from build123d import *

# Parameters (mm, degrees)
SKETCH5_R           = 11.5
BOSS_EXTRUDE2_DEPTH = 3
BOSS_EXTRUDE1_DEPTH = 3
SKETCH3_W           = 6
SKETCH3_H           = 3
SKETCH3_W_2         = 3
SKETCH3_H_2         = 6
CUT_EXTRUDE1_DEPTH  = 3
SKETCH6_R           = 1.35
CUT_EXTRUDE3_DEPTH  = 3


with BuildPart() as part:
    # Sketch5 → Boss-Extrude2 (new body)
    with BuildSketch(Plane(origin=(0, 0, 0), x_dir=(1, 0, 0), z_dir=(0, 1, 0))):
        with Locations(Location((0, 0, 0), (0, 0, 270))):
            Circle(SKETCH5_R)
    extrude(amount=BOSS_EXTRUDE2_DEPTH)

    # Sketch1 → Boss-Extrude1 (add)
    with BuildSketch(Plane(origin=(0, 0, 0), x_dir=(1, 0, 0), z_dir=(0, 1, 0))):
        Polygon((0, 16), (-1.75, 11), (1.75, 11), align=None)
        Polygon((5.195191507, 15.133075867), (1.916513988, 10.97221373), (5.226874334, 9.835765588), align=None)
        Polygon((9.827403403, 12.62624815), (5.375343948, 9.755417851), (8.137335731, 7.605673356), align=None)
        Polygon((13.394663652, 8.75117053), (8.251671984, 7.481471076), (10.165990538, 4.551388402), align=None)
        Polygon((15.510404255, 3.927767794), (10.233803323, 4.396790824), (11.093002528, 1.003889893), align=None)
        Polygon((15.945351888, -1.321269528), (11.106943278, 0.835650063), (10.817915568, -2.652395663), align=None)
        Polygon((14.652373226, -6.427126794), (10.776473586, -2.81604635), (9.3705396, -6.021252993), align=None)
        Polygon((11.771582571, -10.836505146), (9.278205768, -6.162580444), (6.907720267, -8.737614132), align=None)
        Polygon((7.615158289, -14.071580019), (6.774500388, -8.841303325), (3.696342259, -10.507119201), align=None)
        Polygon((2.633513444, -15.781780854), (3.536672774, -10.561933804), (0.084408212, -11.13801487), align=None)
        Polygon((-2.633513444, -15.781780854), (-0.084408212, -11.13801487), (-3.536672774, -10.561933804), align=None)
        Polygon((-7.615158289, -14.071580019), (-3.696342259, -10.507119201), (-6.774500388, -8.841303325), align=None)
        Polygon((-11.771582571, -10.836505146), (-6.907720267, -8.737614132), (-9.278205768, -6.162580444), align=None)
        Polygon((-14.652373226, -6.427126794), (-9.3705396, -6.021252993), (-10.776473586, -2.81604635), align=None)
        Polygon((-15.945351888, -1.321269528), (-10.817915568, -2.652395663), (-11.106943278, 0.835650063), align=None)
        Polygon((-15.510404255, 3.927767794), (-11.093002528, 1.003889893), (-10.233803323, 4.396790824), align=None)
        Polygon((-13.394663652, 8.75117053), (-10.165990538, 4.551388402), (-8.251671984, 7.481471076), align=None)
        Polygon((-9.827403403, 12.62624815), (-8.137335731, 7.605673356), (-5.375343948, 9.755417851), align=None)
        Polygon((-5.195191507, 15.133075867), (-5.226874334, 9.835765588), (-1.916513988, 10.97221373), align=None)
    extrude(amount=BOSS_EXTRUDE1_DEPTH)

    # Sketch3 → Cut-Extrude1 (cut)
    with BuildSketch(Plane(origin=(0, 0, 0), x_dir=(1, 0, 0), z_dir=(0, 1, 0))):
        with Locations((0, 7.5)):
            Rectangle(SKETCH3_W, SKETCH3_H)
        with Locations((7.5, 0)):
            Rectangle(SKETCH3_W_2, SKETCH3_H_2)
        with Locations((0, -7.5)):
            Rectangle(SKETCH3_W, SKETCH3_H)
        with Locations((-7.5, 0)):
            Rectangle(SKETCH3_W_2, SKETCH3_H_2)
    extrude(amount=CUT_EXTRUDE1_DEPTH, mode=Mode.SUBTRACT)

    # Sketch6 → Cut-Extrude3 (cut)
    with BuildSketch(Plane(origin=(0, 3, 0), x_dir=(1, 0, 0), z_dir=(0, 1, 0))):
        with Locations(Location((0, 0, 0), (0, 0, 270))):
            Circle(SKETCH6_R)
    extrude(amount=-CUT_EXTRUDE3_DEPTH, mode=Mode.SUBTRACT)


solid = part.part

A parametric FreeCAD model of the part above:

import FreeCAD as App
import Part
import Sketcher
from FreeCAD import Vector
Q = App.Units.Quantity


def add_polygon(sketch, points):
    """Adds a closed chain of lines whose ends are joined by coincident constraints."""
    first, n = sketch.GeometryCount, len(points)
    for a, b in zip(points, points[1:] + points[:1]):
        sketch.addGeometry(Part.LineSegment(App.Vector(*a, 0), App.Vector(*b, 0)), False)
    for i in range(n):
        sketch.addConstraint(Sketcher.Constraint("Coincident", first + i, 2, first + (i + 1) % n, 1))

doc = App.newDocument("Part")
body = doc.addObject("PartDesign::Body", "Body")

sketch1 = body.newObject("Sketcher::SketchObject", "Sketch")
sketch1.AttachmentSupport = (doc.getObject("XZ_Plane"), [""])
sketch1.MapMode = "FlatFace"
sketch1.addGeometry(Part.Circle(Vector(0, 0, 0), Vector(0, 0, 1), 12), False)
sketch1.addConstraint(Sketcher.Constraint("Coincident", 0, 3, -1, 1))
sketch1.addConstraint(Sketcher.Constraint("Diameter", 0, Q("23 mm")))
pad1 = body.newObject("PartDesign::Pad", "Pad")
pad1.Profile = sketch1
pad1.Length = 3
pad1.Reversed = True

sketch2 = body.newObject("Sketcher::SketchObject", "Sketch001")
sketch2.AttachmentSupport = (doc.getObject("XZ_Plane"), [""])
sketch2.MapMode = "FlatFace"
add_polygon(sketch2, [(0, -16), (-1.8, -11), (1.8, -11)])
add_polygon(sketch2, [(5.2, -15.1), (1.9, -11), (5.2, -9.8)])
add_polygon(sketch2, [(9.8, -12.6), (5.4, -9.8), (8.1, -7.6)])
add_polygon(sketch2, [(13.4, -8.8), (8.3, -7.5), (10.2, -4.6)])
add_polygon(sketch2, [(15.5, -3.9), (10.2, -4.4), (11.1, -1)])
add_polygon(sketch2, [(15.9, 1.3), (11.1, -0.8), (10.8, 2.7)])
add_polygon(sketch2, [(14.7, 6.4), (10.8, 2.8), (9.4, 6)])
add_polygon(sketch2, [(11.8, 10.8), (9.3, 6.2), (6.9, 8.7)])
add_polygon(sketch2, [(7.6, 14.1), (6.8, 8.8), (3.7, 10.5)])
add_polygon(sketch2, [(2.6, 15.8), (3.5, 10.6), (0.1, 11.1)])
add_polygon(sketch2, [(-2.6, 15.8), (-0.1, 11.1), (-3.5, 10.6)])
add_polygon(sketch2, [(-7.6, 14.1), (-3.7, 10.5), (-6.8, 8.8)])
add_polygon(sketch2, [(-11.8, 10.8), (-6.9, 8.7), (-9.3, 6.2)])
add_polygon(sketch2, [(-14.7, 6.4), (-9.4, 6), (-10.8, 2.8)])
add_polygon(sketch2, [(-15.9, 1.3), (-10.8, 2.7), (-11.1, -0.8)])
add_polygon(sketch2, [(-15.5, -3.9), (-11.1, -1), (-10.2, -4.4)])
add_polygon(sketch2, [(-13.4, -8.8), (-10.2, -4.6), (-8.3, -7.5)])
add_polygon(sketch2, [(-9.8, -12.6), (-8.1, -7.6), (-5.4, -9.8)])
add_polygon(sketch2, [(-5.2, -15.1), (-5.2, -9.8), (-1.9, -11)])
sketch2.addConstraint(Sketcher.Constraint("Horizontal", 1))
sketch2.addConstraint(Sketcher.Constraint("Symmetric", 28, 2, 30, 2, -2))
sketch2.addConstraint(Sketcher.Constraint("Symmetric", 27, 2, 31, 2, -2))
sketch2.addConstraint(Sketcher.Constraint("Symmetric", 29, 2, 32, 2, -2))
sketch2.addConstraint(Sketcher.Constraint("Symmetric", 25, 2, 33, 2, -2))
sketch2.addConstraint(Sketcher.Constraint("Symmetric", 24, 2, 34, 2, -2))
sketch2.addConstraint(Sketcher.Constraint("Symmetric", 26, 2, 35, 2, -2))
sketch2.addConstraint(Sketcher.Constraint("Symmetric", 22, 2, 36, 2, -2))
sketch2.addConstraint(Sketcher.Constraint("Symmetric", 21, 2, 37, 2, -2))
sketch2.addConstraint(Sketcher.Constraint("Symmetric", 23, 2, 38, 2, -2))
sketch2.addConstraint(Sketcher.Constraint("Symmetric", 19, 2, 39, 2, -2))
sketch2.addConstraint(Sketcher.Constraint("Symmetric", 18, 2, 40, 2, -2))
sketch2.addConstraint(Sketcher.Constraint("Symmetric", 20, 2, 41, 2, -2))
sketch2.addConstraint(Sketcher.Constraint("Symmetric", 16, 2, 42, 2, -2))
sketch2.addConstraint(Sketcher.Constraint("Symmetric", 15, 2, 43, 2, -2))
sketch2.addConstraint(Sketcher.Constraint("Symmetric", 17, 2, 44, 2, -2))
sketch2.addConstraint(Sketcher.Constraint("Symmetric", 13, 2, 45, 2, -2))
sketch2.addConstraint(Sketcher.Constraint("Symmetric", 12, 2, 46, 2, -2))
sketch2.addConstraint(Sketcher.Constraint("Symmetric", 14, 2, 47, 2, -2))
sketch2.addConstraint(Sketcher.Constraint("Symmetric", 10, 2, 48, 2, -2))
sketch2.addConstraint(Sketcher.Constraint("Symmetric", 9, 2, 49, 2, -2))
sketch2.addConstraint(Sketcher.Constraint("Symmetric", 11, 2, 50, 2, -2))
sketch2.addConstraint(Sketcher.Constraint("Symmetric", 7, 2, 51, 2, -2))
sketch2.addConstraint(Sketcher.Constraint("Symmetric", 6, 2, 52, 2, -2))
sketch2.addConstraint(Sketcher.Constraint("Symmetric", 8, 2, 53, 2, -2))
sketch2.addConstraint(Sketcher.Constraint("Symmetric", 4, 2, 54, 2, -2))
sketch2.addConstraint(Sketcher.Constraint("Symmetric", 3, 2, 55, 2, -2))
sketch2.addConstraint(Sketcher.Constraint("Symmetric", 5, 2, 56, 2, -2))
sketch2.addConstraint(Sketcher.Constraint("PointOnObject", 2, 2, -2))
sketch2.addConstraint(Sketcher.Constraint("Equal", 0, 2))
sketch2.addConstraint(Sketcher.Constraint("Equal", 2, 3))
sketch2.addConstraint(Sketcher.Constraint("Equal", 3, 5))
sketch2.addConstraint(Sketcher.Constraint("Equal", 5, 6))
sketch2.addConstraint(Sketcher.Constraint("Equal", 4, 7))
sketch2.addConstraint(Sketcher.Constraint("Equal", 6, 8))
sketch2.addConstraint(Sketcher.Constraint("Equal", 8, 9))
sketch2.addConstraint(Sketcher.Constraint("Equal", 7, 10))
sketch2.addConstraint(Sketcher.Constraint("Equal", 9, 11))
sketch2.addConstraint(Sketcher.Constraint("Equal", 11, 12))
sketch2.addConstraint(Sketcher.Constraint("Equal", 10, 13))
sketch2.addConstraint(Sketcher.Constraint("Equal", 12, 14))
sketch2.addConstraint(Sketcher.Constraint("Equal", 14, 15))
sketch2.addConstraint(Sketcher.Constraint("Equal", 13, 16))
sketch2.addConstraint(Sketcher.Constraint("Equal", 15, 17))
sketch2.addConstraint(Sketcher.Constraint("Equal", 17, 18))
sketch2.addConstraint(Sketcher.Constraint("Equal", 16, 19))
sketch2.addConstraint(Sketcher.Constraint("Equal", 18, 20))
sketch2.addConstraint(Sketcher.Constraint("Equal", 20, 21))
sketch2.addConstraint(Sketcher.Constraint("Equal", 19, 22))
sketch2.addConstraint(Sketcher.Constraint("Equal", 21, 23))
sketch2.addConstraint(Sketcher.Constraint("Equal", 23, 24))
sketch2.addConstraint(Sketcher.Constraint("Equal", 22, 25))
sketch2.addConstraint(Sketcher.Constraint("Equal", 24, 26))
sketch2.addConstraint(Sketcher.Constraint("Equal", 26, 27))
sketch2.addConstraint(Sketcher.Constraint("Equal", 25, 28))
sketch2.addConstraint(Sketcher.Constraint("Equal", 27, 29))
sketch2.addConstraint(Sketcher.Constraint("DistanceX", 1, 1, 1, 2, Q("3.5 mm")))
sketch2.addConstraint(Sketcher.Constraint("DistanceY", 0, 2, -1, 1, Q("11 mm")))
sketch2.addConstraint(Sketcher.Constraint("DistanceY", 2, 2, -1, 1, Q("16 mm")))
sketch2.addConstraint(Sketcher.Constraint("Distance", 4, Q("3.5 mm")))
sketch2.addConstraint(Sketcher.Constraint("DistanceY", 21, 2, 26, 2, Q("7.909 mm")))
sketch2.addConstraint(Sketcher.Constraint("DistanceX", -1, 1, 24, 2, Q("6.7745 mm")))
sketch2.addConstraint(Sketcher.Constraint("DistanceY", 11, 2, 9, 2, Q("1.269699 mm")))
sketch2.addConstraint(Sketcher.Constraint("DistanceX", 12, 2, 13, 2, Q("0.859199 mm")))
sketch2.addConstraint(Sketcher.Constraint("DistanceY", 10, 2, 13, 2, Q("3.547499 mm")))
sketch2.addConstraint(Sketcher.Constraint("DistanceX", 18, 2, 20, 2, Q("3.8759 mm")))
sketch2.addConstraint(Sketcher.Constraint("DistanceY", 24, 2, 23, 2, Q("1.995202 mm")))
sketch2.addConstraint(Sketcher.Constraint("DistanceY", 22, 2, 28, 2, Q("2.400401 mm")))
sketch2.addConstraint(Sketcher.Constraint("DistanceY", 26, 2, 29, 2, Q("1.710201 mm")))
sketch2.addConstraint(Sketcher.Constraint("DistanceX", -1, 1, 5, 2, Q("5.195192 mm")))
sketch2.addConstraint(Sketcher.Constraint("DistanceY", 8, 2, -1, 1, Q("12.626248 mm")))
sketch2.addConstraint(Sketcher.Constraint("DistanceX", -1, 1, 9, 2, Q("8.251672 mm")))
sketch2.addConstraint(Sketcher.Constraint("DistanceY", 9, 2, -1, 1, Q("7.481471 mm")))
sketch2.addConstraint(Sketcher.Constraint("DistanceY", 15, 2, -1, 1, Q("0.83565 mm")))
sketch2.addConstraint(Sketcher.Constraint("DistanceX", -1, 1, 17, 2, Q("15.945352 mm")))
sketch2.addConstraint(Sketcher.Constraint("DistanceY", -1, 1, 17, 2, Q("1.32127 mm")))
sketch2.addConstraint(Sketcher.Constraint("DistanceX", -1, 1, 19, 2, Q("9.37054 mm")))
sketch2.addConstraint(Sketcher.Constraint("DistanceY", -1, 1, 21, 2, Q("6.16258 mm")))
sketch2.addConstraint(Sketcher.Constraint("DistanceX", -1, 1, 22, 2, Q("6.90772 mm")))
sketch2.addConstraint(Sketcher.Constraint("DistanceY", -1, 1, 25, 2, Q("10.507119 mm")))
sketch2.addConstraint(Sketcher.Constraint("DistanceX", -1, 1, 28, 2, Q("0.084408 mm")))
sketch2.addConstraint(Sketcher.Constraint("DistanceX", 3, 2, 4, 2, Q("3.31036 mm")))
sketch2.addConstraint(Sketcher.Constraint("DistanceX", 4, 2, 6, 2, Q("0.14847 mm")))
sketch2.addConstraint(Sketcher.Constraint("DistanceY", 5, 2, 6, 2, Q("5.377658 mm")))
sketch2.addConstraint(Sketcher.Constraint("DistanceX", 6, 2, 7, 2, Q("2.761992 mm")))
sketch2.addConstraint(Sketcher.Constraint("DistanceX", 9, 2, 12, 2, Q("1.982131 mm")))
sketch2.addConstraint(Sketcher.Constraint("DistanceY", 16, 2, 18, 2, Q("0.163651 mm")))
pad2 = body.newObject("PartDesign::Pad", "Pad001")
pad2.Profile = sketch2
pad2.Length = 3
pad2.Reversed = True

sketch3 = body.newObject("Sketcher::SketchObject", "Sketch002")
sketch3.AttachmentSupport = (doc.getObject("XZ_Plane"), [""])
sketch3.MapMode = "FlatFace"
add_polygon(sketch3, [(-3, -9), (-3, -6), (3, -6), (3, -9)])
add_polygon(sketch3, [(6, -3), (6, 3), (9, 3), (9, -3)])
add_polygon(sketch3, [(-3, 6), (-3, 9), (3, 9), (3, 6)])
add_polygon(sketch3, [(-9, -3), (-9, 3), (-6, 3), (-6, -3)])
sketch3.addConstraint(Sketcher.Constraint("Vertical", 0))
sketch3.addConstraint(Sketcher.Constraint("Horizontal", 1))
sketch3.addConstraint(Sketcher.Constraint("Vertical", 2))
sketch3.addConstraint(Sketcher.Constraint("Horizontal", 3))
sketch3.addConstraint(Sketcher.Constraint("Vertical", 4))
sketch3.addConstraint(Sketcher.Constraint("Horizontal", 5))
sketch3.addConstraint(Sketcher.Constraint("Vertical", 6))
sketch3.addConstraint(Sketcher.Constraint("Horizontal", 7))
sketch3.addConstraint(Sketcher.Constraint("Vertical", 8))
sketch3.addConstraint(Sketcher.Constraint("Horizontal", 9))
sketch3.addConstraint(Sketcher.Constraint("Vertical", 10))
sketch3.addConstraint(Sketcher.Constraint("Horizontal", 11))
sketch3.addConstraint(Sketcher.Constraint("Vertical", 12))
sketch3.addConstraint(Sketcher.Constraint("Horizontal", 13))
sketch3.addConstraint(Sketcher.Constraint("Vertical", 14))
sketch3.addConstraint(Sketcher.Constraint("Horizontal", 15))
sketch3.addConstraint(Sketcher.Constraint("Symmetric", 2, 2, 8, 2, -1, 1))
sketch3.addConstraint(Sketcher.Constraint("Symmetric", 0, 2, 10, 2, -1, 1))
sketch3.addConstraint(Sketcher.Constraint("Symmetric", 6, 2, 12, 2, -1, 1))
sketch3.addConstraint(Sketcher.Constraint("Symmetric", 4, 2, 14, 2, -1, 1))
sketch3.addConstraint(Sketcher.Constraint("Horizontal", 5, 2, 12, 2))
sketch3.addConstraint(Sketcher.Constraint("Vertical", 3, 2, 8, 2))
sketch3.addConstraint(Sketcher.Constraint("Equal", 15, 0))
sketch3.addConstraint(Sketcher.Constraint("Equal", 11, 4))
sketch3.addConstraint(Sketcher.Constraint("DistanceX", 1, 1, 1, 2, Q("6 mm")))
sketch3.addConstraint(Sketcher.Constraint("DistanceX", 5, 1, 5, 2, Q("3 mm")))
sketch3.addConstraint(Sketcher.Constraint("DistanceY", 0, 2, -1, 1, Q("6 mm")))
sketch3.addConstraint(Sketcher.Constraint("DistanceX", -1, 1, 4, 2, Q("6 mm")))
pocket1 = body.newObject("PartDesign::Pocket", "Pocket")
pocket1.Profile = sketch3
pocket1.Length = 3

sketch4 = body.newObject("Sketcher::SketchObject", "Sketch003")
sketch4.AttachmentSupport = (doc.getObject("XZ_Plane"), [""])
sketch4.MapMode = "FlatFace"
sketch4.AttachmentOffset = App.Placement(Vector(0, 0, -3), App.Rotation())
sketch4.addGeometry(Part.Circle(Vector(0, 0, 0), Vector(0, 0, 1), 1.4), False)
sketch4.addConstraint(Sketcher.Constraint("Coincident", 0, 3, -1, 1))
sketch4.addConstraint(Sketcher.Constraint("Diameter", 0, Q("2.7 mm")))
pocket2 = body.newObject("PartDesign::Pocket", "Pocket001")
pocket2.Profile = sketch4
pocket2.Length = 3
pocket2.Reversed = True

doc.recompute()
